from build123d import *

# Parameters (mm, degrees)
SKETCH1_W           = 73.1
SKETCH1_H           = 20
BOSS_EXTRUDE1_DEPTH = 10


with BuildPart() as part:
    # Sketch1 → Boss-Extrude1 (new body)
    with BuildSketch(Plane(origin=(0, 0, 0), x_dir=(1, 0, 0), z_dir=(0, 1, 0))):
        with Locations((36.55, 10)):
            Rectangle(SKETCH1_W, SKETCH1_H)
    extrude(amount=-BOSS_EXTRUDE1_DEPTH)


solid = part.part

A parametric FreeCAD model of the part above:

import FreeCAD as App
import Part
import Sketcher

V = App.Vector
Q = App.Units.Quantity


def add_polygon(sketch, points):
    """Adds a closed chain of lines whose ends are joined by coincident constraints."""
    first, n = sketch.GeometryCount, len(points)
    for a, b in zip(points, points[1:] + points[:1]):
        sketch.addGeometry(Part.LineSegment(App.Vector(*a, 0), App.Vector(*b, 0)), False)
    for i in range(n):
        sketch.addConstraint(Sketcher.Constraint("Coincident", first + i, 2, first + (i + 1) % n, 1))

doc = App.newDocument("Part")
body = doc.addObject("PartDesign::Body", "Body")

sketch1 = body.newObject("Sketcher::SketchObject", "Sketch")
sketch1.AttachmentSupport = (doc.getObject("XZ_Plane"), [""])
sketch1.MapMode = "FlatFace"
add_polygon(sketch1, [(0, -20), (0, 0), (73, 0), (73, -20)])
sketch1.addConstraint([
    Sketcher.Constraint("Vertical", 0),
    Sketcher.Constraint("Horizontal", 1),
    Sketcher.Constraint("Vertical", 2),
    Sketcher.Constraint("Horizontal", 3),
    Sketcher.Constraint("Coincident", 0, 2, -1, 1),
    Sketcher.Constraint("DistanceY", 0, 1, 0, 2, Q("20 mm")),
    Sketcher.Constraint("DistanceX", 1, 1, 1, 2, Q("73.1 mm")),
])
pad1 = body.newObject("PartDesign::Pad", "Pad")
pad1.Profile = sketch1
pad1.Length = 10

doc.recompute()
